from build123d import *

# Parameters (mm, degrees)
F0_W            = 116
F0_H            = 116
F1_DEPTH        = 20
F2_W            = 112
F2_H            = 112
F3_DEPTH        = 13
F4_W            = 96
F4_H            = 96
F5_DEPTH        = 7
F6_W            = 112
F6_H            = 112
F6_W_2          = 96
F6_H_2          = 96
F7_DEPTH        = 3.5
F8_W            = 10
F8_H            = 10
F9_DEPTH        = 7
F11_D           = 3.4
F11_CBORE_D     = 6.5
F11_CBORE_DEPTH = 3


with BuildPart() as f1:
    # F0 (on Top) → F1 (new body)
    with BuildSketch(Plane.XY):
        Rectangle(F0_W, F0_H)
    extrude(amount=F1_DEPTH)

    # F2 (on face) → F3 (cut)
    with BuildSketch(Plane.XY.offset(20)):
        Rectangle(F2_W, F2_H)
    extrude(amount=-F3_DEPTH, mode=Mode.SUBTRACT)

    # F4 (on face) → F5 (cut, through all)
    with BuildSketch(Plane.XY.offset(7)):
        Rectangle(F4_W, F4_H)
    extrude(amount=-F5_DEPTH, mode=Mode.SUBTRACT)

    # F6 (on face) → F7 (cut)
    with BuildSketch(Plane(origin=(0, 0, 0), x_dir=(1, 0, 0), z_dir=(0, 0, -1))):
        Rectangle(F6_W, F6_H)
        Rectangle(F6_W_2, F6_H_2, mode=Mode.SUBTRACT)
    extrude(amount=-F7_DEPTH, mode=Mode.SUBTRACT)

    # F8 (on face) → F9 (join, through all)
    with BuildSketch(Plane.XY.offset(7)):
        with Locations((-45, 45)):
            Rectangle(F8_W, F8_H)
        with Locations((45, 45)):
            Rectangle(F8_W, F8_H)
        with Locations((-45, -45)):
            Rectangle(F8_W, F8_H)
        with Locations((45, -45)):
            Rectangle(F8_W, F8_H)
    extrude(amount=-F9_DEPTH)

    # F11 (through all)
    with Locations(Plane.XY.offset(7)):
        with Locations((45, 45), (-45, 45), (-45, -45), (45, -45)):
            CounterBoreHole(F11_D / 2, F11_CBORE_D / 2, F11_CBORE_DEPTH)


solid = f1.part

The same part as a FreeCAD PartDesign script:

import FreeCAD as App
import Part
import Sketcher

V = App.Vector
Q = App.Units.Quantity

doc = App.newDocument("Part")
body = doc.addObject("PartDesign::Body", "Body")

# Sketch on XY plane
sketch1 = body.newObject("Sketcher::SketchObject", "Sketch")
sketch1.AttachmentSupport = (doc.getObject("XY_Plane"), [""])
sketch1.MapMode = "FlatFace"
sketch1.addGeometry([
    Part.LineSegment(V(-58, 58, 0), V(-58, -58, 0)),
    Part.LineSegment(V(-58, -58, 0), V(58, -58, 0)),
    Part.LineSegment(V(58, -58, 0), V(58, 58, 0)),
    Part.LineSegment(V(58, 58, 0), V(-58, 58, 0)),
], False)
sketch1.addConstraint([
    Sketcher.Constraint("Coincident", 0, 2, 1, 1),
    Sketcher.Constraint("Coincident", 1, 2, 2, 1),
    Sketcher.Constraint("Coincident", 2, 2, 3, 1),
    Sketcher.Constraint("Coincident", 3, 2, 0, 1),
    Sketcher.Constraint("Vertical", 0),
    Sketcher.Constraint("Horizontal", 1),
    Sketcher.Constraint("Vertical", 2),
    Sketcher.Constraint("Horizontal", 3),
    Sketcher.Constraint("Symmetric", 0, 2, 2, 2, -1, 1),
    Sketcher.Constraint("Equal", 3, 0),
    Sketcher.Constraint("DistanceX", 1, 1, 1, 2, Q("116 mm")),
])
pad1 = body.newObject("PartDesign::Pad", "Pad")
pad1.Profile = sketch1
pad1.Length = 20

# Sketch on XY plane
sketch2 = body.newObject("Sketcher::SketchObject", "Sketch001")
sketch2.AttachmentSupport = (doc.getObject("XY_Plane"), [""])
sketch2.MapMode = "FlatFace"
sketch2.AttachmentOffset = App.Placement(V(0, 0, 20), App.Rotation())
sketch2.addGeometry([
    Part.LineSegment(V(-56, 56, 0), V(-56, -56, 0)),
    Part.LineSegment(V(-56, -56, 0), V(56, -56, 0)),
    Part.LineSegment(V(56, -56, 0), V(56, 56, 0)),
    Part.LineSegment(V(56, 56, 0), V(-56, 56, 0)),
], False)
sketch2.addConstraint([
    Sketcher.Constraint("Coincident", 0, 2, 1, 1),
    Sketcher.Constraint("Coincident", 1, 2, 2, 1),
    Sketcher.Constraint("Coincident", 2, 2, 3, 1),
    Sketcher.Constraint("Coincident", 3, 2, 0, 1),
    Sketcher.Constraint("Vertical", 0),
    Sketcher.Constraint("Horizontal", 1),
    Sketcher.Constraint("Vertical", 2),
    Sketcher.Constraint("Horizontal", 3),
    Sketcher.Constraint("Symmetric", 0, 2, 2, 2, -1, 1),
    Sketcher.Constraint("Equal", 3, 0),
    Sketcher.Constraint("DistanceX", 1, 1, 1, 2, Q("112 mm")),
])
pocket1 = body.newObject("PartDesign::Pocket", "Pocket")
pocket1.Profile = sketch2
pocket1.Length = 13

# Sketch on XY plane
sketch3 = body.newObject("Sketcher::SketchObject", "Sketch002")
sketch3.AttachmentSupport = (doc.getObject("XY_Plane"), [""])
sketch3.MapMode = "FlatFace"
sketch3.AttachmentOffset = App.Placement(V(0, 0, 7), App.Rotation())
sketch3.addGeometry([
    Part.LineSegment(V(-48, 48, 0), V(-48, -48, 0)),
    Part.LineSegment(V(-48, -48, 0), V(48, -48, 0)),
    Part.LineSegment(V(48, -48, 0), V(48, 48, 0)),
    Part.LineSegment(V(48, 48, 0), V(-48, 48, 0)),
], False)
sketch3.addConstraint([
    Sketcher.Constraint("Coincident", 0, 2, 1, 1),
    Sketcher.Constraint("Coincident", 1, 2, 2, 1),
    Sketcher.Constraint("Coincident", 2, 2, 3, 1),
    Sketcher.Constraint("Coincident", 3, 2, 0, 1),
    Sketcher.Constraint("Vertical", 0),
    Sketcher.Constraint("Horizontal", 1),
    Sketcher.Constraint("Vertical", 2),
    Sketcher.Constraint("Horizontal", 3),
    Sketcher.Constraint("Symmetric", 0, 2, 2, 2, -1, 1),
    Sketcher.Constraint("Equal", 3, 0),
    Sketcher.Constraint("DistanceX", 1, 1, 1, 2, Q("96 mm")),
])
pocket2 = body.newObject("PartDesign::Pocket", "Pocket001")
pocket2.Profile = sketch3
pocket2.Type = "ThroughAll"

# Sketch on XY plane
sketch4 = body.newObject("Sketcher::SketchObject", "Sketch003")
sketch4.AttachmentSupport = (doc.getObject("XY_Plane"), [""])
sketch4.MapMode = "FlatFace"
sketch4.addGeometry([
    Part.LineSegment(V(-56, -56, 0), V(-56, 56, 0)),  # 0
    Part.LineSegment(V(-56, 56, 0), V(56, 56, 0)),  # 1
    Part.LineSegment(V(56, 56, 0), V(56, -56, 0)),  # 2
    Part.LineSegment(V(56, -56, 0), V(-56, -56, 0)),  # 3
    Part.LineSegment(V(48, 48, 0), V(-48, 48, 0)),  # 4
    Part.LineSegment(V(-48, 48, 0), V(-48, -48, 0)),  # 5
    Part.LineSegment(V(-48, -48, 0), V(48, -48, 0)),  # 6
    Part.LineSegment(V(48, -48, 0), V(48, 48, 0)),  # 7
], False)
sketch4.addConstraint([
    Sketcher.Constraint("Coincident", 0, 2, 1, 1),
    Sketcher.Constraint("Coincident", 1, 2, 2, 1),
    Sketcher.Constraint("Coincident", 2, 2, 3, 1),
    Sketcher.Constraint("Coincident", 3, 2, 0, 1),
    Sketcher.Constraint("Coincident", 4, 2, 5, 1),
    Sketcher.Constraint("Coincident", 5, 2, 6, 1),
    Sketcher.Constraint("Coincident", 6, 2, 7, 1),
    Sketcher.Constraint("Coincident", 7, 2, 4, 1),
    Sketcher.Constraint("Vertical", 0),
    Sketcher.Constraint("Horizontal", 1),
    Sketcher.Constraint("Vertical", 2),
    Sketcher.Constraint("Horizontal", 3),
    Sketcher.Constraint("Horizontal", 4),
    Sketcher.Constraint("Vertical", 5),
    Sketcher.Constraint("Horizontal", 6),
    Sketcher.Constraint("Vertical", 7),
    Sketcher.Constraint("Symmetric", 0, 2, 2, 2, -1, 1),
    Sketcher.Constraint("Symmetric", 4, 2, 6, 2, -1, 1),
    Sketcher.Constraint("Equal", 3, 0),
    Sketcher.Constraint("Equal", 6, 5),
    Sketcher.Constraint("DistanceX", 1, 1, 1, 2, Q("112 mm")),
    Sketcher.Constraint("DistanceX", 4, 2, 4, 1, Q("96 mm")),
])
pocket3 = body.newObject("PartDesign::Pocket", "Pocket002")
pocket3.Profile = sketch4
pocket3.Length = 3.5
pocket3.Reversed = True

# Sketch on XY plane
sketch5 = body.newObject("Sketcher::SketchObject", "Sketch004")
sketch5.AttachmentSupport = (doc.getObject("XY_Plane"), [""])
sketch5.MapMode = "FlatFace"
sketch5.AttachmentOffset = App.Placement(V(0, 0, 7), App.Rotation())
sketch5.addGeometry([
    Part.LineSegment(V(-50, 50, 0), V(-50, 40, 0)),  # 0
    Part.LineSegment(V(-50, 40, 0), V(-40, 40, 0)),  # 1
    Part.LineSegment(V(-40, 40, 0), V(-40, 50, 0)),  # 2
    Part.LineSegment(V(-40, 50, 0), V(-50, 50, 0)),  # 3
    Part.LineSegment(V(40, 50, 0), V(40, 40, 0)),  # 4
    Part.LineSegment(V(40, 40, 0), V(50, 40, 0)),  # 5
    Part.LineSegment(V(50, 40, 0), V(50, 50, 0)),  # 6
    Part.LineSegment(V(50, 50, 0), V(40, 50, 0)),  # 7
    Part.LineSegment(V(-50, -40, 0), V(-50, -50, 0)),  # 8
    Part.LineSegment(V(-50, -50, 0), V(-40, -50, 0)),  # 9
    Part.LineSegment(V(-40, -50, 0), V(-40, -40, 0)),  # 10
    Part.LineSegment(V(-40, -40, 0), V(-50, -40, 0)),  # 11
    Part.LineSegment(V(40, -40, 0), V(40, -50, 0)),  # 12
    Part.LineSegment(V(40, -50, 0), V(50, -50, 0)),  # 13
    Part.LineSegment(V(50, -50, 0), V(50, -40, 0)),  # 14
    Part.LineSegment(V(50, -40, 0), V(40, -40, 0)),  # 15
], False)
sketch5.addConstraint([
    Sketcher.Constraint("Coincident", 0, 2, 1, 1),
    Sketcher.Constraint("Coincident", 1, 2, 2, 1),
    Sketcher.Constraint("Coincident", 2, 2, 3, 1),
    Sketcher.Constraint("Coincident", 3, 2, 0, 1),
    Sketcher.Constraint("Coincident", 4, 2, 5, 1),
    Sketcher.Constraint("Coincident", 5, 2, 6, 1),
    Sketcher.Constraint("Coincident", 6, 2, 7, 1),
    Sketcher.Constraint("Coincident", 7, 2, 4, 1),
    Sketcher.Constraint("Coincident", 8, 2, 9, 1),
    Sketcher.Constraint("Coincident", 9, 2, 10, 1),
    Sketcher.Constraint("Coincident", 10, 2, 11, 1),
    Sketcher.Constraint("Coincident", 11, 2, 8, 1),
    Sketcher.Constraint("Coincident", 12, 2, 13, 1),
    Sketcher.Constraint("Coincident", 13, 2, 14, 1),
    Sketcher.Constraint("Coincident", 14, 2, 15, 1),
    Sketcher.Constraint("Coincident", 15, 2, 12, 1),
    Sketcher.Constraint("Vertical", 0),
    Sketcher.Constraint("Horizontal", 1),
    Sketcher.Constraint("Vertical", 2),
    Sketcher.Constraint("Horizontal", 3),
    Sketcher.Constraint("Vertical", 4),
    Sketcher.Constraint("Horizontal", 5),
    Sketcher.Constraint("Vertical", 6),
    Sketcher.Constraint("Horizontal", 7),
    Sketcher.Constraint("Vertical", 8),
    Sketcher.Constraint("Horizontal", 9),
    Sketcher.Constraint("Vertical", 10),
    Sketcher.Constraint("Horizontal", 11),
    Sketcher.Constraint("Vertical", 12),
    Sketcher.Constraint("Horizontal", 13),
    Sketcher.Constraint("Vertical", 14),
    Sketcher.Constraint("Horizontal", 15),
    Sketcher.Constraint("Symmetric", 6, 2, 8, 2, -1, 1),
    Sketcher.Constraint("Symmetric", 4, 2, 10, 2, -1, 1),
    Sketcher.Constraint("Symmetric", 2, 2, 12, 2, -1, 1),
    Sketcher.Constraint("Symmetric", 0, 2, 14, 2, -1, 1),
    Sketcher.Constraint("Symmetric", 1, 2, 4, 2, -2),
    Sketcher.Constraint("Symmetric", 3, 2, 6, 2, -2),
    Sketcher.Constraint("Equal", 15, 0),
    Sketcher.Constraint("DistanceX", 1, 1, 1, 2, Q("10 mm")),
    Sketcher.Constraint("DistanceX", 0, 2, -1, 1, Q("50 mm")),
    Sketcher.Constraint("DistanceY", -1, 1, 0, 2, Q("40 mm")),
])
pad2 = body.newObject("PartDesign::Pad", "Pad001")
pad2.Profile = sketch5
pad2.Length = 7
pad2.Reversed = True

# Sketch on XY plane
sketch6 = body.newObject("Sketcher::SketchObject", "Sketch005")
sketch6.AttachmentSupport = (doc.getObject("XY_Plane"), [""])
sketch6.MapMode = "FlatFace"
sketch6.AttachmentOffset = App.Placement(V(0, 0, 7), App.Rotation())
sketch6.addGeometry([
    Part.Circle(V(45, 45, 0), V(0, 0, 1), 1.7),
    Part.Circle(V(-45, 45, 0), V(0, 0, 1), 1.7),
    Part.Circle(V(-45, -45, 0), V(0, 0, 1), 1.7),
    Part.Circle(V(45, -45, 0), V(0, 0, 1), 1.7),
], False)
sketch6.addConstraint([
    Sketcher.Constraint("Equal", 0, 1),
    Sketcher.Constraint("Equal", 1, 2),
    Sketcher.Constraint("Equal", 2, 3),
    Sketcher.Constraint("Symmetric", 0, 3, 2, 3, -1, 1),
    Sketcher.Constraint("Symmetric", 1, 3, 3, 3, -1, 1),
    Sketcher.Constraint("Symmetric", 0, 3, 1, 3, -2),
    Sketcher.Constraint("Diameter", 0, Q("3.4 mm")),
    Sketcher.Constraint("DistanceX", -1, 1, 0, 3, Q("45 mm")),
    Sketcher.Constraint("DistanceY", -1, 1, 0, 3, Q("45 mm")),
])
doc.recompute()
hole = body.newObject("PartDesign::Hole", "Hole")
hole.Profile = sketch6
hole.ThreadType = "None"
hole.Diameter = 3.4
hole.DepthType = "ThroughAll"
hole.HoleCutType = "Counterbore"
hole.HoleCutDiameter = 6.5
hole.HoleCutDepth = 3

doc.recompute()
